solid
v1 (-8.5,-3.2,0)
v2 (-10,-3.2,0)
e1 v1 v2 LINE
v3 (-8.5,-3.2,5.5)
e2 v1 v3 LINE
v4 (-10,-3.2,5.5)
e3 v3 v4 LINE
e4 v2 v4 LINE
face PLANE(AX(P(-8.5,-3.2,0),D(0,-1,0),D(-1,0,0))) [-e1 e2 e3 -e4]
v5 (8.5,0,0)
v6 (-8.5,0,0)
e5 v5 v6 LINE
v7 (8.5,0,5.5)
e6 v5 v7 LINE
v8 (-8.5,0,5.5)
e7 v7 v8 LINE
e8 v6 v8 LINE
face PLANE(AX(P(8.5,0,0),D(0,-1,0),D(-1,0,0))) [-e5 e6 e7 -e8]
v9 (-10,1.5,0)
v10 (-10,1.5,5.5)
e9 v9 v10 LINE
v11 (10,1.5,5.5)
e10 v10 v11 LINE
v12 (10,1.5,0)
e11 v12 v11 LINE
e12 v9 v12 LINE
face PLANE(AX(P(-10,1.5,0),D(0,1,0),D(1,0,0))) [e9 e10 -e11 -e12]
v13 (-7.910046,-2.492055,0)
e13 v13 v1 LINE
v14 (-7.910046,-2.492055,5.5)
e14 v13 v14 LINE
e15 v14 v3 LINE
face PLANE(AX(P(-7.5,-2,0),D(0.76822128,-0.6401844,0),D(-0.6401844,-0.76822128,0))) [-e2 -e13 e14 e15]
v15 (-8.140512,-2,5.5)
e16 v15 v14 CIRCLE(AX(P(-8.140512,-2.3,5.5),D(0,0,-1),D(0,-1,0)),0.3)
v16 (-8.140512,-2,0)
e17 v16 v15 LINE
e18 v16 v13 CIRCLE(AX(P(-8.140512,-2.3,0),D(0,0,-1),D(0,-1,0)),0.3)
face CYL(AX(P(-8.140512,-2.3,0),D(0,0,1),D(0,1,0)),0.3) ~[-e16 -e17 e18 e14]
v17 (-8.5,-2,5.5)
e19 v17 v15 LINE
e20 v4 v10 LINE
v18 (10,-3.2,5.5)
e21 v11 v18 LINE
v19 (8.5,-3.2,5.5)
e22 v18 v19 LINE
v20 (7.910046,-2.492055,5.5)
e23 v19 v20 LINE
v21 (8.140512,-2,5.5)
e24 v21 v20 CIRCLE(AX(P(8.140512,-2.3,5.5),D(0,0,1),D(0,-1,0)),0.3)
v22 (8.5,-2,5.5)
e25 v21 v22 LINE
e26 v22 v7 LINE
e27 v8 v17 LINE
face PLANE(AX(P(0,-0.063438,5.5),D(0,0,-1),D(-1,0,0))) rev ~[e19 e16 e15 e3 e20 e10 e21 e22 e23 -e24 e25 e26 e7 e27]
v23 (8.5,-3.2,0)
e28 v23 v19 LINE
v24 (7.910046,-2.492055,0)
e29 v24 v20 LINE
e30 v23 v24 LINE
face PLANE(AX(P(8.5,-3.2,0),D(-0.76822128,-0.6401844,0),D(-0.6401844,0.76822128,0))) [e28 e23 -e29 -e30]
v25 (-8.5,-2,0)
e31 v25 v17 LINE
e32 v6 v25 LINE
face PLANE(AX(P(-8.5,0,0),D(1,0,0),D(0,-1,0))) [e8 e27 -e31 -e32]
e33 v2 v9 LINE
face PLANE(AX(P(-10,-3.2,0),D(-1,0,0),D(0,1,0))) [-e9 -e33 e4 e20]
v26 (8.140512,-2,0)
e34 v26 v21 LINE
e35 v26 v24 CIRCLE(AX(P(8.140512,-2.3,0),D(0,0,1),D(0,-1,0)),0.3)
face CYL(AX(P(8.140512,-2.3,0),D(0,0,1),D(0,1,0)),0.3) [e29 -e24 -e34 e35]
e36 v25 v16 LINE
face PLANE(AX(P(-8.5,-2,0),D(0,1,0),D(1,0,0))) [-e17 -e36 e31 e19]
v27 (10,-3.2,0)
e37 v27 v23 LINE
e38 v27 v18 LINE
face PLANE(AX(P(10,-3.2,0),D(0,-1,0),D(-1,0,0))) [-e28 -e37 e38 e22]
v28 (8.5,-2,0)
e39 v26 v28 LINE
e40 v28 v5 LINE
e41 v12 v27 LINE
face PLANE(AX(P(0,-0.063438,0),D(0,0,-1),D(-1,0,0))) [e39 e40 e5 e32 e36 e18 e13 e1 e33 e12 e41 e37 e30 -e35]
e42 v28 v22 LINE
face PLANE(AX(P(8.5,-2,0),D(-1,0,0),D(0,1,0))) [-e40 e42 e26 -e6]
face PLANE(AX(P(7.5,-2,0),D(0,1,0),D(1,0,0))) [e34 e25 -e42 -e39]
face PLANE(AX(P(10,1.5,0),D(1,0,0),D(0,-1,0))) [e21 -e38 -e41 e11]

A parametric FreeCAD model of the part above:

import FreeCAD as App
import Part
import Sketcher
Q = App.Units.Quantity


def edges_at(feature, points):
    """Names of the edges that pass closest to the given points."""
    edges = feature.Shape.Edges
    near = lambda p: min(range(len(edges)), key=lambda i: edges[i].distToShape(Part.Vertex(*p))[0])
    return sorted({f"Edge{near(p) + 1}" for p in points})

doc = App.newDocument("Part")
body = doc.addObject("PartDesign::Body", "Body")

sketch1 = body.newObject("Sketcher::SketchObject", "Sketch")
sketch1.AttachmentSupport = (doc.getObject("XY_Plane"), [""])
sketch1.MapMode = "FlatFace"
sketch1.addGeometry([
    Part.LineSegment(App.Vector(10, 1.5, 0), App.Vector(-10, 1.5, 0)),
    Part.LineSegment(App.Vector(-10, 1.5, 0), App.Vector(-10, -3.2, 0)),
    Part.LineSegment(App.Vector(-10, -3.2, 0), App.Vector(-8.5, -3.2, 0)),
    Part.LineSegment(App.Vector(-8.5, -3.2, 0), App.Vector(-7.5, -2, 0)),
    Part.LineSegment(App.Vector(-7.5, -2, 0), App.Vector(-8.5, -2, 0)),
    Part.LineSegment(App.Vector(-8.5, -2, 0), App.Vector(-8.5, 0, 0)),
    Part.LineSegment(App.Vector(-8.5, 0, 0), App.Vector(8.5, 0, 0)),
    Part.LineSegment(App.Vector(8.5, 0, 0), App.Vector(8.5, -2, 0)),
    Part.LineSegment(App.Vector(8.5, -2, 0), App.Vector(7.5, -2, 0)),
    Part.LineSegment(App.Vector(7.5, -2, 0), App.Vector(8.5, -3.2, 0)),
    Part.LineSegment(App.Vector(8.5, -3.2, 0), App.Vector(10, -3.2, 0)),
    Part.LineSegment(App.Vector(10, -3.2, 0), App.Vector(10, 1.5, 0)),
], False)
sketch1.addConstraint([
    Sketcher.Constraint("Coincident", 0, 2, 1, 1),
    Sketcher.Constraint("Coincident", 1, 2, 2, 1),
    Sketcher.Constraint("Coincident", 2, 2, 3, 1),
    Sketcher.Constraint("Coincident", 3, 2, 4, 1),
    Sketcher.Constraint("Coincident", 4, 2, 5, 1),
    Sketcher.Constraint("Coincident", 5, 2, 6, 1),
    Sketcher.Constraint("Coincident", 6, 2, 7, 1),
    Sketcher.Constraint("Coincident", 7, 2, 8, 1),
    Sketcher.Constraint("Coincident", 8, 2, 9, 1),
    Sketcher.Constraint("Coincident", 9, 2, 10, 1),
    Sketcher.Constraint("Coincident", 10, 2, 11, 1),
    Sketcher.Constraint("Coincident", 11, 2, 0, 1),
    Sketcher.Constraint("Horizontal", 0),
    Sketcher.Constraint("Vertical", 1),
    Sketcher.Constraint("Horizontal", 2),
    Sketcher.Constraint("Horizontal", 4),
    Sketcher.Constraint("Vertical", 5),
    Sketcher.Constraint("Horizontal", 6),
    Sketcher.Constraint("Vertical", 7),
    Sketcher.Constraint("Horizontal", 8),
    Sketcher.Constraint("Horizontal", 10),
    Sketcher.Constraint("Vertical", 11),
    Sketcher.Constraint("Symmetric", 5, 2, 6, 2, -1, 1),
    Sketcher.Constraint("Symmetric", 3, 2, 8, 2, -2),
    Sketcher.Constraint("Symmetric", 2, 2, 9, 2, -2),
    Sketcher.Constraint("Vertical", 2, 2, 4, 2),
    Sketcher.Constraint("Equal", 2, 10),
    Sketcher.Constraint("DistanceX", 0, 2, 0, 1, Q("20 mm")),
    Sketcher.Constraint("DistanceX", 4, 2, 4, 1, Q("1 mm")),
    Sketcher.Constraint("DistanceX", 6, 1, 6, 2, Q("17 mm")),
    Sketcher.Constraint("DistanceY", 5, 1, 5, 2, Q("2 mm")),
    Sketcher.Constraint("DistanceY", 1, 2, 1, 1, Q("4.7 mm")),
    Sketcher.Constraint("DistanceY", -1, 1, 0, 2, Q("1.5 mm")),
])
pad1 = body.newObject("PartDesign::Pad", "Pad")
pad1.Profile = sketch1
pad1.Length = 5.5
doc.recompute()

fillet = body.newObject("PartDesign::Fillet", "Fillet")
fillet.Base = (pad1, edges_at(pad1, [(-7.5, -2, 2.75)]))
fillet.Radius = 0.3
doc.recompute()

fillet2 = body.newObject("PartDesign::Fillet", "Fillet001")
fillet2.Base = (fillet, edges_at(fillet, [(7.5, -2, 2.75)]))
fillet2.Radius = 0.3

doc.recompute()
